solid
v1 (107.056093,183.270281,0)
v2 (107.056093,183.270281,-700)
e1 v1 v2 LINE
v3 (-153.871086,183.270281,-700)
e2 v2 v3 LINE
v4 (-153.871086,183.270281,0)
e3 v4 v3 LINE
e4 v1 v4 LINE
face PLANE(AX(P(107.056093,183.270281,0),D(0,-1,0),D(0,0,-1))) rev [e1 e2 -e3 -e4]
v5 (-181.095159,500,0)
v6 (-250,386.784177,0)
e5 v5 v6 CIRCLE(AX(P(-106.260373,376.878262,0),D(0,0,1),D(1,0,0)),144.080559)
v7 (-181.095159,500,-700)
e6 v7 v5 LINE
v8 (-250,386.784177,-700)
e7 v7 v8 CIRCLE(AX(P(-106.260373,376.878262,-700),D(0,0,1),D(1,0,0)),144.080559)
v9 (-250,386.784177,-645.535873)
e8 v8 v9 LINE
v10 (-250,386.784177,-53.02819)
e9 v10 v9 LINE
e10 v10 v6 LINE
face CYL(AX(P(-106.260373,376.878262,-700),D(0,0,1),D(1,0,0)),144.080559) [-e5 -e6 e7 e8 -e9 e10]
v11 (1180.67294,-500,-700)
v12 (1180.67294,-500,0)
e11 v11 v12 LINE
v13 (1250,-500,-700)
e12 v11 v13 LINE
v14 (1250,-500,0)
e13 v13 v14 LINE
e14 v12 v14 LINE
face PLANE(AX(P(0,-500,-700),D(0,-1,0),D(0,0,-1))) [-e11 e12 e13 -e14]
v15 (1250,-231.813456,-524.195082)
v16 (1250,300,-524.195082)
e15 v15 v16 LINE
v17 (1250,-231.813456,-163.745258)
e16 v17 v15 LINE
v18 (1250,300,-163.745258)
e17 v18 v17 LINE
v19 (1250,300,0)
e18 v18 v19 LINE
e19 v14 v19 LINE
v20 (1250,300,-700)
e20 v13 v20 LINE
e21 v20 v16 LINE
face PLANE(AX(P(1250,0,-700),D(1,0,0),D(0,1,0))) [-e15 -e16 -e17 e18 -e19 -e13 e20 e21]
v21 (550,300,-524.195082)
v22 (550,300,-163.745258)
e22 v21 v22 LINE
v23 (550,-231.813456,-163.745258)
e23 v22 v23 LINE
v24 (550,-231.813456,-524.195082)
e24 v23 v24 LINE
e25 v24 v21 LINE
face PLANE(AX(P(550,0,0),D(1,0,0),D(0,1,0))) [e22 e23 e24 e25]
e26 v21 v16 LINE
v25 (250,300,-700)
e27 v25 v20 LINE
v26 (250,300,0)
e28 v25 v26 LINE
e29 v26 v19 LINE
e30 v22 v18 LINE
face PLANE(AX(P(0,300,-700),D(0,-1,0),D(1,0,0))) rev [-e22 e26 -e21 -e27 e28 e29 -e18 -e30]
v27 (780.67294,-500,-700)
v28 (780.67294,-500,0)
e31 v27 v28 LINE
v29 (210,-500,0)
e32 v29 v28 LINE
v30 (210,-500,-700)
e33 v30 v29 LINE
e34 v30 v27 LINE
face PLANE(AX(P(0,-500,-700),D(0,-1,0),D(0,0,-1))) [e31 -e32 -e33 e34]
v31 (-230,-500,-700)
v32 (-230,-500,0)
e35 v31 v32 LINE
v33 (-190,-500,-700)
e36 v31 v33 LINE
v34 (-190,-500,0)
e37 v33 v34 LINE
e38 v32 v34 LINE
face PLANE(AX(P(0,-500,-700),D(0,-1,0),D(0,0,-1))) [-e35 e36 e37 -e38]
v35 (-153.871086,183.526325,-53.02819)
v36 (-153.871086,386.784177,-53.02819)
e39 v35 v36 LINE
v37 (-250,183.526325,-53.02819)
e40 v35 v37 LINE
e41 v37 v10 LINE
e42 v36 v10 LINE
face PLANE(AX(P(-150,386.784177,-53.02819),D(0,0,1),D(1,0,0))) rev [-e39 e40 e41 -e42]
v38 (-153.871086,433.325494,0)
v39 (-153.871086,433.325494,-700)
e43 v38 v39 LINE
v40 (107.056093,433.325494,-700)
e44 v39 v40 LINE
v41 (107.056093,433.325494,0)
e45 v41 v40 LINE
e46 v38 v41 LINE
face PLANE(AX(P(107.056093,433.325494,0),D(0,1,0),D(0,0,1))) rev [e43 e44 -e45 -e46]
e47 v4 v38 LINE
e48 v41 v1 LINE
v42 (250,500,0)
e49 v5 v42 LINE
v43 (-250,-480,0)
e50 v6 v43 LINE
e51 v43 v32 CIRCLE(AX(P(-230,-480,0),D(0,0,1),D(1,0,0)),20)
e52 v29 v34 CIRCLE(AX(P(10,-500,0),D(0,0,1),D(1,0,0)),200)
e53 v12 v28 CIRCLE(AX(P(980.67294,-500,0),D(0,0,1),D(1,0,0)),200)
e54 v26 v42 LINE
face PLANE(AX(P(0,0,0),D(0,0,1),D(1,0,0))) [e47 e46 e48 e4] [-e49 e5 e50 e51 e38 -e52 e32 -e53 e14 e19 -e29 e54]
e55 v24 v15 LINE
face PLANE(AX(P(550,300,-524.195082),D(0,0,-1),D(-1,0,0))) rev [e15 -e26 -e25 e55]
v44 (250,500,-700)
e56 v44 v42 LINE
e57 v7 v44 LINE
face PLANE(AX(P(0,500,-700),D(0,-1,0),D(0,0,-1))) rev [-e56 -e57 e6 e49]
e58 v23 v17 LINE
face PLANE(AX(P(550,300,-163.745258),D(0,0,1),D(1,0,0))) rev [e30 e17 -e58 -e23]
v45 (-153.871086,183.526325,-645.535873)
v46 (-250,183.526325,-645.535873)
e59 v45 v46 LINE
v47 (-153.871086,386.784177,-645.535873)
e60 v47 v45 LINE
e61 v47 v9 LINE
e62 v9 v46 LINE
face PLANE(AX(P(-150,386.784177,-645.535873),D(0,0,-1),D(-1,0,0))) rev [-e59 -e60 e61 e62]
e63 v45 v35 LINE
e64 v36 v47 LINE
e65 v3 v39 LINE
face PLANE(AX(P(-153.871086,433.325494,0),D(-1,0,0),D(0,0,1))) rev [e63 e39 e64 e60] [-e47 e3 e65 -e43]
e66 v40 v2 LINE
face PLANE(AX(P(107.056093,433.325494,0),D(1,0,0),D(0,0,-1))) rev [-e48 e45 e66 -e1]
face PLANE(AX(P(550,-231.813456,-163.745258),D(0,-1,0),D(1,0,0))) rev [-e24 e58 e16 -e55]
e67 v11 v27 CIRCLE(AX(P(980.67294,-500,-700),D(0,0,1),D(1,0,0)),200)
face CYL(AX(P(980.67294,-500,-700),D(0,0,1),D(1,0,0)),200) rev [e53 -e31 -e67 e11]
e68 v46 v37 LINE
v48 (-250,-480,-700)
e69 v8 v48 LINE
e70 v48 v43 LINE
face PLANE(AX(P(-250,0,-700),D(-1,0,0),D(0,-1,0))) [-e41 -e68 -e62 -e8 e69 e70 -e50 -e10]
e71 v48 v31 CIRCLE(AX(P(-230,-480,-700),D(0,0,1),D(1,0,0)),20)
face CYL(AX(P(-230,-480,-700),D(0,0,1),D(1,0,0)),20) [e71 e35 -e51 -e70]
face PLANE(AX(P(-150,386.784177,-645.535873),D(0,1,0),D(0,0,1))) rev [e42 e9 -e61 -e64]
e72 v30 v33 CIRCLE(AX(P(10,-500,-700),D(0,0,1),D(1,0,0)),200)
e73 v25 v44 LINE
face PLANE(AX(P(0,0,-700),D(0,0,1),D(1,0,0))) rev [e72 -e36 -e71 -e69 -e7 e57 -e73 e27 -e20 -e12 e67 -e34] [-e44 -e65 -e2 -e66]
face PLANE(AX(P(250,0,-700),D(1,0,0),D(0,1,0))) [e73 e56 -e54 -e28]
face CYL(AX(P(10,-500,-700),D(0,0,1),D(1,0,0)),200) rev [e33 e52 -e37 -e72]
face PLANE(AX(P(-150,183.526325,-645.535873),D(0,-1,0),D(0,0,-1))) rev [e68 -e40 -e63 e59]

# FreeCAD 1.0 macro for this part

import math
import FreeCAD as App
import Part
import Sketcher
from FreeCAD import Vector
Q = App.Units.Quantity

doc = App.newDocument("Part")
params = doc.addObject("Spreadsheet::Sheet", "Params")
for row, (alias, value) in enumerate([
    ("sketch1_radius", "200 mm"),
    ("sketch1_radius2", "20 mm"),
    ("sketch1_width", "1000 mm"),
    ("sketch1_width2", "40 mm"),
    ("sketch1_height", "800 mm"),
    ("pad1_length", "700 mm"),
    ("pocket1_length", "700 mm"),
    ("pocket2_length", "700 mm"),
    ("pocket3_length", "100 mm"),
], start=1):
    params.set(f"A{row}", alias)
    params.set(f"B{row}", "=" + value)
    params.setAlias(f"B{row}", alias)

body = doc.addObject("PartDesign::Body", "Body")

# Sketch on XY plane
sketch1 = body.newObject("Sketcher::SketchObject", "Sketch")
sketch1.AttachmentSupport = (doc.getObject("XY_Plane"), [""])
sketch1.MapMode = "FlatFace"
sketch1.addGeometry([
    Part.LineSegment(Vector(210, -500, 0), Vector(781, -500, 0)),  # 0
    Part.ArcOfCircle(Part.Circle(Vector(981, -500, 0), Vector(0, 0, 1), 200), math.radians(0), math.radians(180)),  # 1
    Part.LineSegment(Vector(1181, -500, 0), Vector(1250, -500, 0)),  # 2
    Part.LineSegment(Vector(1250, -500, 0), Vector(1250, 300, 0)),  # 3
    Part.LineSegment(Vector(1250, 300, 0), Vector(250, 300, 0)),  # 4
    Part.LineSegment(Vector(250, 300, 0), Vector(250, 500, 0)),  # 5
    Part.LineSegment(Vector(250, 500, 0), Vector(-181, 500, 0)),  # 6
    Part.ArcOfCircle(Part.Circle(Vector(-106, 377, 0), Vector(0, 0, 1), 144), math.radians(121), math.radians(176)),  # 7
    Part.LineSegment(Vector(-250, 387, 0), Vector(-250, -480, 0)),  # 8
    Part.ArcOfCircle(Part.Circle(Vector(-230, -480, 0), Vector(0, 0, 1), 20), math.radians(180), math.radians(270)),  # 9
    Part.LineSegment(Vector(-230, -500, 0), Vector(-190, -500, 0)),  # 10
    Part.ArcOfCircle(Part.Circle(Vector(10, -500, 0), Vector(0, 0, 1), 200), math.radians(0), math.radians(180)),  # 11
], False)
sketch1.addConstraint([
    Sketcher.Constraint("Coincident", 0, 2, 1, 2),
    Sketcher.Constraint("Coincident", 1, 1, 2, 1),
    Sketcher.Constraint("Coincident", 2, 2, 3, 1),
    Sketcher.Constraint("Coincident", 3, 2, 4, 1),
    Sketcher.Constraint("Coincident", 4, 2, 5, 1),
    Sketcher.Constraint("Coincident", 5, 2, 6, 1),
    Sketcher.Constraint("Coincident", 6, 2, 7, 1),
    Sketcher.Constraint("Coincident", 7, 2, 8, 1),
    Sketcher.Constraint("Tangent", 8, 2, 9, 1),
    Sketcher.Constraint("Tangent", 9, 2, 10, 1),
    Sketcher.Constraint("Coincident", 10, 2, 11, 2),
    Sketcher.Constraint("Coincident", 11, 1, 0, 1),
    Sketcher.Constraint("Horizontal", 0),
    Sketcher.Constraint("Horizontal", 2),
    Sketcher.Constraint("Vertical", 3),
    Sketcher.Constraint("Horizontal", 4),
    Sketcher.Constraint("Vertical", 5),
    Sketcher.Constraint("Horizontal", 6),
    Sketcher.Constraint("Vertical", 8),
    Sketcher.Constraint("Horizontal", 10),
    Sketcher.Constraint("Equal", 1, 11),
    Sketcher.Constraint("Horizontal", 1, 3, 11, 3),
    Sketcher.Constraint("Horizontal", 11, 3, 0, 2),
    Sketcher.Constraint("Horizontal", 0, 2, 1, 1),
    Sketcher.Constraint("Horizontal", 2, 2, 9, 2),
    Sketcher.Constraint("Radius", 1, Q("200 mm")),
    Sketcher.Constraint("Radius", 9, Q("20 mm")),
    Sketcher.Constraint("DistanceX", 4, 2, 4, 1, Q("1000 mm")),
    Sketcher.Constraint("DistanceX", 10, 1, 10, 2, Q("40 mm")),
    Sketcher.Constraint("DistanceY", 3, 1, 3, 2, Q("800 mm")),
    Sketcher.Constraint("DistanceY", 5, 1, 5, 2, Q("200 mm")),
    Sketcher.Constraint("DistanceY", 1, 3, -1, 1, Q("500 mm")),
    Sketcher.Constraint("DistanceX", 9, 3, -1, 1, Q("230 mm")),
    Sketcher.Constraint("DistanceX", -1, 1, 2, 2, Q("1250 mm")),
    Sketcher.Constraint("Radius", 7, Q("144.080559 mm")),
    Sketcher.Constraint("DistanceX", 0, 1, 0, 2, Q("570.67294 mm")),
    Sketcher.Constraint("DistanceX", 6, 2, 6, 1, Q("431.095159 mm")),
    Sketcher.Constraint("DistanceY", 8, 2, 8, 1, Q("866.784177 mm")),
])
sketch1.setExpression("Constraints[25]", "Params.sketch1_radius")
sketch1.setExpression("Constraints[26]", "Params.sketch1_radius2")
sketch1.setExpression("Constraints[27]", "Params.sketch1_width")
sketch1.setExpression("Constraints[28]", "Params.sketch1_width2")
sketch1.setExpression("Constraints[29]", "Params.sketch1_height")
pad1 = body.newObject("PartDesign::Pad", "Pad")
pad1.Profile = sketch1
pad1.setExpression("Length", "Params.pad1_length")
pad1.Reversed = True

# Sketch on YZ plane
sketch2 = body.newObject("Sketcher::SketchObject", "Sketch001")
sketch2.AttachmentSupport = (doc.getObject("YZ_Plane"), [""])
sketch2.MapMode = "FlatFace"
sketch2.AttachmentOffset = App.Placement(Vector(0, 0, 1250), App.Rotation())
sketch2.addGeometry([
    Part.LineSegment(Vector(300, -164, 0), Vector(-232, -164, 0)),
    Part.LineSegment(Vector(-232, -164, 0), Vector(-232, -524, 0)),
    Part.LineSegment(Vector(-232, -524, 0), Vector(300, -524, 0)),
    Part.LineSegment(Vector(300, -524, 0), Vector(300, -164, 0)),
], False)
sketch2.addConstraint([
    Sketcher.Constraint("Coincident", 0, 2, 1, 1),
    Sketcher.Constraint("Coincident", 1, 2, 2, 1),
    Sketcher.Constraint("Coincident", 2, 2, 3, 1),
    Sketcher.Constraint("Coincident", 3, 2, 0, 1),
    Sketcher.Constraint("Horizontal", 0),
    Sketcher.Constraint("Vertical", 1),
    Sketcher.Constraint("Horizontal", 2),
    Sketcher.Constraint("Vertical", 3),
    Sketcher.Constraint("DistanceX", -1, 1, 2, 2, Q("300 mm")),
    Sketcher.Constraint("DistanceX", 0, 2, 0, 1, Q("531.813456 mm")),
    Sketcher.Constraint("DistanceY", 1, 2, 1, 1, Q("360.449824 mm")),
    Sketcher.Constraint("DistanceY", 0, 2, -1, 1, Q("163.745258 mm")),
])
pocket1 = body.newObject("PartDesign::Pocket", "Pocket")
pocket1.Profile = sketch2
pocket1.setExpression("Length", "Params.pocket1_length")

# Sketch on XY plane
sketch3 = body.newObject("Sketcher::SketchObject", "Sketch002")
sketch3.AttachmentSupport = (doc.getObject("XY_Plane"), [""])
sketch3.MapMode = "FlatFace"
sketch3.AttachmentOffset = App.Placement(Vector(0, 0, -700), App.Rotation())
sketch3.addGeometry([
    Part.LineSegment(Vector(107, 433, 0), Vector(107, 183, 0)),
    Part.LineSegment(Vector(107, 183, 0), Vector(-154, 183, 0)),
    Part.LineSegment(Vector(-154, 183, 0), Vector(-154, 433, 0)),
    Part.LineSegment(Vector(-154, 433, 0), Vector(107, 433, 0)),
], False)
sketch3.addConstraint([
    Sketcher.Constraint("Coincident", 0, 2, 1, 1),
    Sketcher.Constraint("Coincident", 1, 2, 2, 1),
    Sketcher.Constraint("Coincident", 2, 2, 3, 1),
    Sketcher.Constraint("Coincident", 3, 2, 0, 1),
    Sketcher.Constraint("Vertical", 0),
    Sketcher.Constraint("Horizontal", 1),
    Sketcher.Constraint("Vertical", 2),
    Sketcher.Constraint("Horizontal", 3),
    Sketcher.Constraint("DistanceX", 1, 2, 1, 1, Q("260.927179 mm")),
    Sketcher.Constraint("DistanceY", 0, 2, 0, 1, Q("250.055213 mm")),
    Sketcher.Constraint("DistanceY", -1, 1, 0, 2, Q("183.270281 mm")),
    Sketcher.Constraint("DistanceX", -1, 1, 0, 2, Q("107.056093 mm")),
])
pocket2 = body.newObject("PartDesign::Pocket", "Pocket001")
pocket2.Profile = sketch3
pocket2.setExpression("Length", "Params.pocket2_length")
pocket2.Reversed = True

# Sketch on YZ plane
sketch4 = body.newObject("Sketcher::SketchObject", "Sketch003")
sketch4.AttachmentSupport = (doc.getObject("YZ_Plane"), [""])
sketch4.MapMode = "FlatFace"
sketch4.AttachmentOffset = App.Placement(Vector(0, 0, -250), App.Rotation())
sketch4.addGeometry([
    Part.LineSegment(Vector(387, -646, 0), Vector(184, -646, 0)),
    Part.LineSegment(Vector(184, -646, 0), Vector(184, -53, 0)),
    Part.LineSegment(Vector(184, -53, 0), Vector(387, -53, 0)),
    Part.LineSegment(Vector(387, -53, 0), Vector(387, -646, 0)),
], False)
sketch4.addConstraint([
    Sketcher.Constraint("Coincident", 0, 2, 1, 1),
    Sketcher.Constraint("Coincident", 1, 2, 2, 1),
    Sketcher.Constraint("Coincident", 2, 2, 3, 1),
    Sketcher.Constraint("Coincident", 3, 2, 0, 1),
    Sketcher.Constraint("Horizontal", 0),
    Sketcher.Constraint("Vertical", 1),
    Sketcher.Constraint("Horizontal", 2),
    Sketcher.Constraint("Vertical", 3),
    Sketcher.Constraint("DistanceX", 0, 2, 0, 1, Q("203.257851 mm")),
    Sketcher.Constraint("DistanceY", 1, 1, 1, 2, Q("592.507683 mm")),
    Sketcher.Constraint("DistanceY", 1, 2, -1, 1, Q("53.02819 mm")),
    Sketcher.Constraint("DistanceX", -1, 1, 0, 2, Q("183.526325 mm")),
])
pocket3 = body.newObject("PartDesign::Pocket", "Pocket002")
pocket3.Profile = sketch4
pocket3.setExpression("Length", "Params.pocket3_length")
pocket3.Reversed = True

doc.recompute()
